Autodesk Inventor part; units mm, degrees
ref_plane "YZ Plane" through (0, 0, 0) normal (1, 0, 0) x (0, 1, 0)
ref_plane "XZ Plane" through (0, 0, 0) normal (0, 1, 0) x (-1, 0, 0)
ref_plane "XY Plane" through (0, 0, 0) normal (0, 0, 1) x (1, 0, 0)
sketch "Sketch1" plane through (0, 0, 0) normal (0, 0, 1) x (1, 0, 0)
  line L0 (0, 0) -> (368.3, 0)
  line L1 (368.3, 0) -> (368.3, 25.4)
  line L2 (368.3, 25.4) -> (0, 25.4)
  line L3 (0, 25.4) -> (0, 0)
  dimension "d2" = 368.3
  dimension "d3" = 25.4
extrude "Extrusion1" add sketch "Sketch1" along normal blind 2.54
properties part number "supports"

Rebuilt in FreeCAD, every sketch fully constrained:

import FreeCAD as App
import Part
import Sketcher
Q = App.Units.Quantity

doc = App.newDocument("Part")
body = doc.addObject("PartDesign::Body", "Body")

sketch1 = body.newObject("Sketcher::SketchObject", "Sketch")
sketch1.AttachmentSupport = (doc.getObject("XY_Plane"), [""])
sketch1.MapMode = "FlatFace"
sketch1.addGeometry(Part.LineSegment(App.Vector(0, 25, 0), App.Vector(0, 0, 0)), False)
sketch1.addGeometry(Part.LineSegment(App.Vector(0, 0, 0), App.Vector(368, 0, 0)), False)
sketch1.addGeometry(Part.LineSegment(App.Vector(368, 0, 0), App.Vector(368, 25, 0)), False)
sketch1.addGeometry(Part.LineSegment(App.Vector(368, 25, 0), App.Vector(0, 25, 0)), False)
sketch1.addConstraint(Sketcher.Constraint("Coincident", 0, 2, 1, 1))
sketch1.addConstraint(Sketcher.Constraint("Coincident", 1, 2, 2, 1))
sketch1.addConstraint(Sketcher.Constraint("Coincident", 2, 2, 3, 1))
sketch1.addConstraint(Sketcher.Constraint("Coincident", 3, 2, 0, 1))
sketch1.addConstraint(Sketcher.Constraint("Vertical", 0))
sketch1.addConstraint(Sketcher.Constraint("Horizontal", 1))
sketch1.addConstraint(Sketcher.Constraint("Vertical", 2))
sketch1.addConstraint(Sketcher.Constraint("Horizontal", 3))
sketch1.addConstraint(Sketcher.Constraint("Coincident", 0, 2, -1, 1))
sketch1.addConstraint(Sketcher.Constraint("DistanceY", 0, 2, 0, 1, Q("1 in")))
sketch1.addConstraint(Sketcher.Constraint("DistanceX", 1, 1, 1, 2, Q("14.5 in")))
pad1 = body.newObject("PartDesign::Pad", "Pad")
pad1.Profile = sketch1
pad1.Length = Q("0.1 in")

doc.recompute()
